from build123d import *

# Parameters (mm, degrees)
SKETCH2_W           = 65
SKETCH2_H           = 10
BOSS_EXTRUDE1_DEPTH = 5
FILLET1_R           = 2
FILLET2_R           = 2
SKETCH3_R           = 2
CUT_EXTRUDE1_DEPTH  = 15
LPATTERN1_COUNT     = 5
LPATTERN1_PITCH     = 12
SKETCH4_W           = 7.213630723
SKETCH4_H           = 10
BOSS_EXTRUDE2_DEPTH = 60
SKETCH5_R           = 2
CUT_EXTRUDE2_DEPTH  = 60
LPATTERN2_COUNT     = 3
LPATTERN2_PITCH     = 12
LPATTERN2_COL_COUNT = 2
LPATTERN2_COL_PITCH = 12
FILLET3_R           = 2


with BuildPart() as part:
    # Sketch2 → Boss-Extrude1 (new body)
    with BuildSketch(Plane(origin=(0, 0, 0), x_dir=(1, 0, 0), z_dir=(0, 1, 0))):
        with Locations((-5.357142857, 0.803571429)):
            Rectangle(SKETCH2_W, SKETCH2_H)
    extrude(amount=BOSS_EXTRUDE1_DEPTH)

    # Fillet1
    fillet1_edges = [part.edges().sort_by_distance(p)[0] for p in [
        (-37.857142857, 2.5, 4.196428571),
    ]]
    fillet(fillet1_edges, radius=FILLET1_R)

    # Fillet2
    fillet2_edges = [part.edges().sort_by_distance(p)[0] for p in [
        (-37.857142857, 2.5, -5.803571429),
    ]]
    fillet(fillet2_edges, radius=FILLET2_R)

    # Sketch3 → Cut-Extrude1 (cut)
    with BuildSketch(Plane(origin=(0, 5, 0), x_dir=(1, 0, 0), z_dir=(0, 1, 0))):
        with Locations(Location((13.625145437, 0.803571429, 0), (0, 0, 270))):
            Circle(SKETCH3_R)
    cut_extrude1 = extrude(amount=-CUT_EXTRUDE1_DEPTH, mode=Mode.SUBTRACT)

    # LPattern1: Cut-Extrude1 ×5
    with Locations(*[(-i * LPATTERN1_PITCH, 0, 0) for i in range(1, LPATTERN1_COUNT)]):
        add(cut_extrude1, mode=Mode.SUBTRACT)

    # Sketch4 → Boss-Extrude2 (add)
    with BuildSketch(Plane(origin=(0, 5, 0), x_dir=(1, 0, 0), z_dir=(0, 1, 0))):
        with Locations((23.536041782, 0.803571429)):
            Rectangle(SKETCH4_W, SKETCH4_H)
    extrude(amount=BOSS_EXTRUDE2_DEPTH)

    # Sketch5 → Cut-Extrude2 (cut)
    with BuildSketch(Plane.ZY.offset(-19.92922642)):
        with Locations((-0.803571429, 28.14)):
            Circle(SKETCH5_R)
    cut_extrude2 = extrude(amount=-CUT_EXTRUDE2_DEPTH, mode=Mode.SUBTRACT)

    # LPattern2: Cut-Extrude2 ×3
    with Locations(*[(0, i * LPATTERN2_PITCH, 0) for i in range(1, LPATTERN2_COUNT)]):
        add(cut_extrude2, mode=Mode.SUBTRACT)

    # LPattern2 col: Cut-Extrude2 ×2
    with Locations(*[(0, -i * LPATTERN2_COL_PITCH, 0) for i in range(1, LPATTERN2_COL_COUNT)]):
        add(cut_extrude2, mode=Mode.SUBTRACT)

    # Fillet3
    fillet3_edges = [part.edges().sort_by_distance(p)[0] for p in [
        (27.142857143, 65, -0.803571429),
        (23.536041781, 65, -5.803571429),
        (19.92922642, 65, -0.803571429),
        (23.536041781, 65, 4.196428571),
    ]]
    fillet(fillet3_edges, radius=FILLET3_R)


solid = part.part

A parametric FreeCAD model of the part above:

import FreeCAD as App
import Part
import Sketcher
from FreeCAD import Vector


def edges_at(feature, points):
    """Names of the edges that pass closest to the given points."""
    edges = feature.Shape.Edges
    near = lambda p: min(range(len(edges)), key=lambda i: edges[i].distToShape(Part.Vertex(*p))[0])
    return sorted({f"Edge{near(p) + 1}" for p in points})

doc = App.newDocument("Part")
params = doc.addObject("Spreadsheet::Sheet", "Params")
for row, (alias, value) in enumerate([
    ("sketch1_width", "65 mm"),
    ("sketch1_height", "10 mm"),
    ("pad1_length", "5 mm"),
    ("fillet_radius", "2 mm"),
    ("fillet2_radius", "2 mm"),
    ("sketch2_diameter", "4 mm"),
    ("pocket1_length", "15 mm"),
    ("linearpattern_pitch", "12 mm"),
    ("sketch3_height", "10 mm"),
    ("pad2_length", "60 mm"),
    ("sketch4_diameter", "4 mm"),
    ("pocket2_length", "60 mm"),
    ("linearpattern2_pitch", "12 mm"),
    ("linearpattern3_pitch", "12 mm"),
    ("fillet3_radius", "2 mm"),
], start=1):
    params.set(f"A{row}", alias)
    params.set(f"B{row}", "=" + value)
    params.setAlias(f"B{row}", alias)

body = doc.addObject("PartDesign::Body", "Body")

# Sketch on XZ plane
sketch1 = body.newObject("Sketcher::SketchObject", "Sketch")
sketch1.AttachmentSupport = (doc.getObject("XZ_Plane"), [""])
sketch1.MapMode = "FlatFace"
sketch1.addGeometry(Part.LineSegment(Vector(-37.857143, -5.803571, 0), Vector(-37.857143, 4.196429, 0)), False)
sketch1.addGeometry(Part.LineSegment(Vector(-37.857143, 4.196429, 0), Vector(27.142857, 4.196429, 0)), False)
sketch1.addGeometry(Part.LineSegment(Vector(27.142857, 4.196429, 0), Vector(27.142857, -5.803571, 0)), False)
sketch1.addGeometry(Part.LineSegment(Vector(27.142857, -5.803571, 0), Vector(-37.857143, -5.803571, 0)), False)
sketch1.addConstraint(Sketcher.Constraint("Coincident", 0, 2, 1, 1))
sketch1.addConstraint(Sketcher.Constraint("Coincident", 1, 2, 2, 1))
sketch1.addConstraint(Sketcher.Constraint("Coincident", 2, 2, 3, 1))
sketch1.addConstraint(Sketcher.Constraint("Coincident", 3, 2, 0, 1))
sketch1.addConstraint(Sketcher.Constraint("Vertical", 0))
sketch1.addConstraint(Sketcher.Constraint("Horizontal", 1))
sketch1.addConstraint(Sketcher.Constraint("Vertical", 2))
sketch1.addConstraint(Sketcher.Constraint("Horizontal", 3))
sketch1.addConstraint(Sketcher.Constraint("DistanceX", 1, 1, 1, 2, 65.0))
sketch1.addConstraint(Sketcher.Constraint("DistanceY", 0, 1, 0, 2, 10.0))
sketch1.addConstraint(Sketcher.Constraint("DistanceY", -1, 1, 0, 2, 4.196429))
sketch1.addConstraint(Sketcher.Constraint("DistanceX", 0, 2, -1, 1, 37.857143))
sketch1.setExpression("Constraints[8]", "Params.sketch1_width")
sketch1.setExpression("Constraints[9]", "Params.sketch1_height")
pad1 = body.newObject("PartDesign::Pad", "Pad")
pad1.Profile = sketch1
pad1.setExpression("Length", "Params.pad1_length")
pad1.Reversed = True
doc.recompute()

fillet = body.newObject("PartDesign::Fillet", "Fillet")
fillet.Base = (pad1, edges_at(pad1, [(-37.857, 2.5, 4.196)]))
fillet.setExpression("Radius", "Params.fillet_radius")
doc.recompute()

fillet2 = body.newObject("PartDesign::Fillet", "Fillet001")
fillet2.Base = (fillet, edges_at(fillet, [(-37.857, 2.5, -5.804)]))
fillet2.setExpression("Radius", "Params.fillet2_radius")

# Sketch on XZ plane
sketch2 = body.newObject("Sketcher::SketchObject", "Sketch001")
sketch2.AttachmentSupport = (doc.getObject("XZ_Plane"), [""])
sketch2.MapMode = "FlatFace"
sketch2.AttachmentOffset = App.Placement(Vector(0, 0, -5), App.Rotation())
sketch2.addGeometry(Part.Circle(Vector(13.625145, -0.803571, 0), Vector(0, 0, 1), 2), False)
sketch2.addConstraint(Sketcher.Constraint("Diameter", 0, 4.0))
sketch2.addConstraint(Sketcher.Constraint("DistanceY", 0, 3, -1, 1, 0.803571))
sketch2.addConstraint(Sketcher.Constraint("DistanceX", -1, 1, 0, 3, 13.625145))
sketch2.setExpression("Constraints[0]", "Params.sketch2_diameter")
pocket1 = body.newObject("PartDesign::Pocket", "Pocket")
pocket1.Profile = sketch2
pocket1.setExpression("Length", "Params.pocket1_length")
pocket1.Reversed = True
doc.recompute()

linearpattern = body.newObject("PartDesign::LinearPattern", "LinearPattern")
linearpattern.Originals = [pocket1]
linearpattern.Direction = (doc.getObject("X_Axis"), [""])
linearpattern.Mode = "offset"
linearpattern.setExpression("Offset", "Params.linearpattern_pitch")
linearpattern.Occurrences = 5
linearpattern.Reversed = True
body.Tip = linearpattern

# Sketch on XZ plane
sketch3 = body.newObject("Sketcher::SketchObject", "Sketch002")
sketch3.AttachmentSupport = (doc.getObject("XZ_Plane"), [""])
sketch3.MapMode = "FlatFace"
sketch3.AttachmentOffset = App.Placement(Vector(0, 0, -5), App.Rotation())
sketch3.addGeometry(Part.LineSegment(Vector(19.929226, -5.803571, 0), Vector(19.929226, 4.196429, 0)), False)
sketch3.addGeometry(Part.LineSegment(Vector(19.929226, 4.196429, 0), Vector(27.142857, 4.196429, 0)), False)
sketch3.addGeometry(Part.LineSegment(Vector(27.142857, 4.196429, 0), Vector(27.142857, -5.803571, 0)), False)
sketch3.addGeometry(Part.LineSegment(Vector(27.142857, -5.803571, 0), Vector(19.929226, -5.803571, 0)), False)
sketch3.addConstraint(Sketcher.Constraint("Coincident", 0, 2, 1, 1))
sketch3.addConstraint(Sketcher.Constraint("Coincident", 1, 2, 2, 1))
sketch3.addConstraint(Sketcher.Constraint("Coincident", 2, 2, 3, 1))
sketch3.addConstraint(Sketcher.Constraint("Coincident", 3, 2, 0, 1))
sketch3.addConstraint(Sketcher.Constraint("Vertical", 0))
sketch3.addConstraint(Sketcher.Constraint("Horizontal", 1))
sketch3.addConstraint(Sketcher.Constraint("Vertical", 2))
sketch3.addConstraint(Sketcher.Constraint("Horizontal", 3))
sketch3.addConstraint(Sketcher.Constraint("DistanceY", 0, 1, 0, 2, 10.0))
sketch3.addConstraint(Sketcher.Constraint("DistanceX", 1, 1, 1, 2, 7.213631))
sketch3.addConstraint(Sketcher.Constraint("DistanceY", -1, 1, 0, 2, 4.196429))
sketch3.addConstraint(Sketcher.Constraint("DistanceX", -1, 1, 0, 2, 19.929226))
sketch3.setExpression("Constraints[8]", "Params.sketch3_height")
pad2 = body.newObject("PartDesign::Pad", "Pad001")
pad2.Profile = sketch3
pad2.setExpression("Length", "Params.pad2_length")
pad2.Reversed = True

# Sketch on YZ plane
sketch4 = body.newObject("Sketcher::SketchObject", "Sketch003")
sketch4.AttachmentSupport = (doc.getObject("YZ_Plane"), [""])
sketch4.MapMode = "FlatFace"
sketch4.AttachmentOffset = App.Placement(Vector(0, 0, 19.929226), App.Rotation())
sketch4.addGeometry(Part.Circle(Vector(28.14, -0.803571, 0), Vector(0, 0, 1), 2), False)
sketch4.addConstraint(Sketcher.Constraint("Diameter", 0, 4.0))
sketch4.addConstraint(Sketcher.Constraint("DistanceX", -1, 1, 0, 3, 28.14))
sketch4.addConstraint(Sketcher.Constraint("DistanceY", 0, 3, -1, 1, 0.803571))
sketch4.setExpression("Constraints[0]", "Params.sketch4_diameter")
pocket2 = body.newObject("PartDesign::Pocket", "Pocket001")
pocket2.Profile = sketch4
pocket2.setExpression("Length", "Params.pocket2_length")
pocket2.Reversed = True
doc.recompute()

linearpattern2 = body.newObject("PartDesign::LinearPattern", "LinearPattern001")
linearpattern2.Originals = [pocket2]
linearpattern2.Direction = (doc.getObject("Y_Axis"), [""])
linearpattern2.Mode = "offset"
linearpattern2.setExpression("Offset", "Params.linearpattern2_pitch")
linearpattern2.Occurrences = 3
body.Tip = linearpattern2
doc.recompute()

linearpattern3 = body.newObject("PartDesign::LinearPattern", "LinearPattern002")
linearpattern3.Originals = [pocket2]
linearpattern3.Direction = (doc.getObject("Y_Axis"), [""])
linearpattern3.Mode = "offset"
linearpattern3.setExpression("Offset", "Params.linearpattern3_pitch")
linearpattern3.Occurrences = 2
linearpattern3.Reversed = True
body.Tip = linearpattern3
doc.recompute()

fillet3 = body.newObject("PartDesign::Fillet", "Fillet002")
fillet3.Base = (linearpattern3, edges_at(linearpattern3, [
    (27.143, 65, -0.804),
    (23.536, 65, -5.804),
    (19.929, 65, -0.804),
    (23.536, 65, 4.196),
]))
fillet3.setExpression("Radius", "Params.fillet3_radius")

doc.recompute()
